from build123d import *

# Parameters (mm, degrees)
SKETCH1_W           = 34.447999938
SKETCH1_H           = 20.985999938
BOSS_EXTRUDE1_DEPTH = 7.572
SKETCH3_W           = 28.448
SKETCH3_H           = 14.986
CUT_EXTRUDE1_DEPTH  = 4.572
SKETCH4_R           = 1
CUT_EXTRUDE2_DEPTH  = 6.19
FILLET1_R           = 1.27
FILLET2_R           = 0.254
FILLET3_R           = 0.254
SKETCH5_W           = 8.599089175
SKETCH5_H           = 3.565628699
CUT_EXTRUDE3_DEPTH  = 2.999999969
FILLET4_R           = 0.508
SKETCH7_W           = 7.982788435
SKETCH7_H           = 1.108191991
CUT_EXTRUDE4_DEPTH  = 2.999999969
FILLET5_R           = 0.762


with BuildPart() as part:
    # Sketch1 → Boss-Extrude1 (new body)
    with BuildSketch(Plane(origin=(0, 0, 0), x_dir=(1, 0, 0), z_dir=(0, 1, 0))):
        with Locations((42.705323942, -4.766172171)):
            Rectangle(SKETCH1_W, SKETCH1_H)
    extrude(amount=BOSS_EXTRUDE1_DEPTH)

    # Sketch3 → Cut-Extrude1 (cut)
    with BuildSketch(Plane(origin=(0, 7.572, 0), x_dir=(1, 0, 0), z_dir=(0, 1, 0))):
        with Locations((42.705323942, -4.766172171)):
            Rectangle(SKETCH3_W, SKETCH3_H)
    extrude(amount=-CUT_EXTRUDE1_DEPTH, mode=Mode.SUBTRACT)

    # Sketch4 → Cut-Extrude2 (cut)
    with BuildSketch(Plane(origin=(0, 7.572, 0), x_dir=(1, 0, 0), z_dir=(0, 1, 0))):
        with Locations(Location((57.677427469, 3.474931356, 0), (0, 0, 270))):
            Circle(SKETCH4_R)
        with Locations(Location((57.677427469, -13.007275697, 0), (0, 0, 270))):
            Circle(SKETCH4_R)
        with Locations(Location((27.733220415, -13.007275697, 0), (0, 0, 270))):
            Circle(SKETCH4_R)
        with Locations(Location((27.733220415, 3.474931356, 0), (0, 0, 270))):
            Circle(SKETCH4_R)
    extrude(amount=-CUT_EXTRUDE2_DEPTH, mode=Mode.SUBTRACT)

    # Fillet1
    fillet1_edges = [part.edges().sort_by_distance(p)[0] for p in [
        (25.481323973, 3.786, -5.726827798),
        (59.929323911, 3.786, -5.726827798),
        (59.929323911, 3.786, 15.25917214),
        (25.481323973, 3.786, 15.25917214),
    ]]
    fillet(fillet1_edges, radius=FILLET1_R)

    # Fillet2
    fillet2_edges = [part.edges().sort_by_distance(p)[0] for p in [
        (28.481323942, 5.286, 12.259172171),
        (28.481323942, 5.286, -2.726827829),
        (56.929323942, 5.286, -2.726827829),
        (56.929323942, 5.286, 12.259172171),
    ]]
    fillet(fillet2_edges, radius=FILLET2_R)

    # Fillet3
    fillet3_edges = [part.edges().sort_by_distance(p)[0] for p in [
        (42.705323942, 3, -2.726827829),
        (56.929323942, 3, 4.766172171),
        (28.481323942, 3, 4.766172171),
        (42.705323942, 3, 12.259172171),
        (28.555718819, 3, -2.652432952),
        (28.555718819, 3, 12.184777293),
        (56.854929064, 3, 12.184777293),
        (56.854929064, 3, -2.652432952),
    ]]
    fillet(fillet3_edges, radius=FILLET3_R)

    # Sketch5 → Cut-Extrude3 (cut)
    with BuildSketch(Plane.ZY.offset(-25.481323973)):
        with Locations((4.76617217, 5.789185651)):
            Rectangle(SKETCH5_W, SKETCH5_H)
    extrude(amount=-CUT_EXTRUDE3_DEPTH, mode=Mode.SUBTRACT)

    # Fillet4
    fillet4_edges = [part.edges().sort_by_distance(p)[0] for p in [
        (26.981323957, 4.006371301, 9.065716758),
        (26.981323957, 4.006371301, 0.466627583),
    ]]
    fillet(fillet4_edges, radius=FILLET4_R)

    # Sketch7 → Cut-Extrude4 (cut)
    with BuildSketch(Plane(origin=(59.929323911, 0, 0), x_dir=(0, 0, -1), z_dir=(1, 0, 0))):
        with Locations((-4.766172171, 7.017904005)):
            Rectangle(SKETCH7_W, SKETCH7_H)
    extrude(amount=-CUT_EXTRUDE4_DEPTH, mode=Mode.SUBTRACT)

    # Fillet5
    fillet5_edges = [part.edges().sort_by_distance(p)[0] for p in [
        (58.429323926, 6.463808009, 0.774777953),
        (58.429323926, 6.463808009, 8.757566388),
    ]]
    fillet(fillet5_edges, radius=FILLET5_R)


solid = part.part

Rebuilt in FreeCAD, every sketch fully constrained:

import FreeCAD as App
import Part
import Sketcher

V = App.Vector
Q = App.Units.Quantity


def edges_at(feature, points):
    """Names of the edges that pass closest to the given points."""
    edges = feature.Shape.Edges
    near = lambda p: min(range(len(edges)), key=lambda i: edges[i].distToShape(Part.Vertex(*p))[0])
    return sorted({f"Edge{near(p) + 1}" for p in points})

doc = App.newDocument("Part")
params = doc.addObject("Spreadsheet::Sheet", "Params")
for row, (alias, value) in enumerate([
    ("pad1_length", "7.572 mm"),
    ("sketch2_width", "1.12 in"),
    ("sketch2_height", "0.59 in"),
    ("pocket1_length", "0.18 in"),
    ("pocket2_length", "6.19 mm"),
    ("fillet_radius", "0.05 in"),
    ("fillet2_radius", "0.01 in"),
    ("fillet3_radius", "0.01 in"),
    ("pocket3_length", "3 mm"),
    ("fillet4_radius", "0.02 in"),
    ("pocket4_length", "3 mm"),
    ("fillet5_radius", "0.03 in"),
], start=1):
    params.set(f"A{row}", alias)
    params.set(f"B{row}", "=" + value)
    params.setAlias(f"B{row}", alias)

body = doc.addObject("PartDesign::Body", "Body")

# Sketch on XZ plane
sketch1 = body.newObject("Sketcher::SketchObject", "Sketch")
sketch1.AttachmentSupport = (doc.getObject("XZ_Plane"), [""])
sketch1.MapMode = "FlatFace"
sketch1.addGeometry([
    Part.LineSegment(V(25.481324, -5.726828, 0), V(25.481324, 15.259172, 0)),
    Part.LineSegment(V(25.481324, 15.259172, 0), V(59.929324, 15.259172, 0)),
    Part.LineSegment(V(59.929324, 15.259172, 0), V(59.929324, -5.726828, 0)),
    Part.LineSegment(V(59.929324, -5.726828, 0), V(25.481324, -5.726828, 0)),
], False)
sketch1.addConstraint([
    Sketcher.Constraint("Coincident", 0, 2, 1, 1),
    Sketcher.Constraint("Coincident", 1, 2, 2, 1),
    Sketcher.Constraint("Coincident", 2, 2, 3, 1),
    Sketcher.Constraint("Coincident", 3, 2, 0, 1),
    Sketcher.Constraint("Vertical", 0),
    Sketcher.Constraint("Horizontal", 1),
    Sketcher.Constraint("Vertical", 2),
    Sketcher.Constraint("Horizontal", 3),
    Sketcher.Constraint("DistanceX", 1, 1, 1, 2, Q("34.448 mm")),
    Sketcher.Constraint("DistanceY", 0, 1, 0, 2, Q("20.986 mm")),
    Sketcher.Constraint("DistanceX", -1, 1, 0, 2, Q("25.481324 mm")),
    Sketcher.Constraint("DistanceY", -1, 1, 0, 2, Q("15.259172 mm")),
])
pad1 = body.newObject("PartDesign::Pad", "Pad")
pad1.Profile = sketch1
pad1.setExpression("Length", "Params.pad1_length")
pad1.Reversed = True

# Sketch on XZ plane
sketch2 = body.newObject("Sketcher::SketchObject", "Sketch001")
sketch2.AttachmentSupport = (doc.getObject("XZ_Plane"), [""])
sketch2.MapMode = "FlatFace"
sketch2.AttachmentOffset = App.Placement(V(0, 0, -7.572), App.Rotation())
sketch2.addGeometry([
    Part.LineSegment(V(28.481324, -2.726828, 0), V(28.481324, 12.259172, 0)),
    Part.LineSegment(V(28.481324, 12.259172, 0), V(56.929324, 12.259172, 0)),
    Part.LineSegment(V(56.929324, 12.259172, 0), V(56.929324, -2.726828, 0)),
    Part.LineSegment(V(56.929324, -2.726828, 0), V(28.481324, -2.726828, 0)),
], False)
sketch2.addConstraint([
    Sketcher.Constraint("Coincident", 0, 2, 1, 1),
    Sketcher.Constraint("Coincident", 1, 2, 2, 1),
    Sketcher.Constraint("Coincident", 2, 2, 3, 1),
    Sketcher.Constraint("Coincident", 3, 2, 0, 1),
    Sketcher.Constraint("Vertical", 0),
    Sketcher.Constraint("Horizontal", 1),
    Sketcher.Constraint("Vertical", 2),
    Sketcher.Constraint("Horizontal", 3),
    Sketcher.Constraint("DistanceX", 1, 1, 1, 2, Q("1.12 in")),
    Sketcher.Constraint("DistanceY", 0, 1, 0, 2, Q("0.59 in")),
    Sketcher.Constraint("DistanceX", -1, 1, 0, 2, Q("28.481324 mm")),
    Sketcher.Constraint("DistanceY", -1, 1, 0, 2, Q("12.259172 mm")),
])
sketch2.setExpression("Constraints[8]", "Params.sketch2_width")
sketch2.setExpression("Constraints[9]", "Params.sketch2_height")
pocket1 = body.newObject("PartDesign::Pocket", "Pocket")
pocket1.Profile = sketch2
pocket1.setExpression("Length", "Params.pocket1_length")
pocket1.Reversed = True

# Sketch on XZ plane
sketch3 = body.newObject("Sketcher::SketchObject", "Sketch002")
sketch3.AttachmentSupport = (doc.getObject("XZ_Plane"), [""])
sketch3.MapMode = "FlatFace"
sketch3.AttachmentOffset = App.Placement(V(0, 0, -7.572), App.Rotation())
sketch3.addGeometry([
    Part.Circle(V(57.677427, -3.474931, 0), V(0, 0, 1), 1),
    Part.Circle(V(57.677427, 13.007276, 0), V(0, 0, 1), 1),
    Part.Circle(V(27.73322, 13.007276, 0), V(0, 0, 1), 1),
    Part.Circle(V(27.73322, -3.474931, 0), V(0, 0, 1), 1),
], False)
sketch3.addConstraint([
    Sketcher.Constraint("Equal", 0, 1),
    Sketcher.Constraint("Equal", 1, 2),
    Sketcher.Constraint("Equal", 2, 3),
    Sketcher.Constraint("Horizontal", 1, 3, 2, 3),
    Sketcher.Constraint("Horizontal", 0, 3, 3, 3),
    Sketcher.Constraint("Vertical", 0, 3, 1, 3),
    Sketcher.Constraint("Vertical", 2, 3, 3, 3),
    Sketcher.Constraint("Diameter", 0, Q("2 mm")),
    Sketcher.Constraint("DistanceY", 0, 3, -1, 1, Q("3.474931 mm")),
    Sketcher.Constraint("DistanceX", -1, 1, 2, 3, Q("27.73322 mm")),
    Sketcher.Constraint("DistanceX", -1, 1, 0, 3, Q("57.677427 mm")),
    Sketcher.Constraint("DistanceY", -1, 1, 1, 3, Q("13.007276 mm")),
])
pocket2 = body.newObject("PartDesign::Pocket", "Pocket001")
pocket2.Profile = sketch3
pocket2.setExpression("Length", "Params.pocket2_length")
pocket2.Reversed = True
doc.recompute()

fillet = body.newObject("PartDesign::Fillet", "Fillet")
fillet.Base = (pocket2, edges_at(pocket2, [
    (25.481, 3.786, -5.727),
    (59.929, 3.786, -5.727),
    (59.929, 3.786, 15.259),
    (25.481, 3.786, 15.259),
]))
fillet.setExpression("Radius", "Params.fillet_radius")
doc.recompute()

fillet2 = body.newObject("PartDesign::Fillet", "Fillet001")
fillet2.Base = (fillet, edges_at(fillet, [
    (28.481, 5.286, 12.259),
    (28.481, 5.286, -2.727),
    (56.929, 5.286, -2.727),
    (56.929, 5.286, 12.259),
]))
fillet2.setExpression("Radius", "Params.fillet2_radius")
doc.recompute()

fillet3 = body.newObject("PartDesign::Fillet", "Fillet002")
fillet3.Base = (fillet2, edges_at(fillet2, [
    (42.705, 3, -2.727),
    (56.929, 3, 4.766),
    (28.481, 3, 4.766),
    (42.705, 3, 12.259),
    (28.556, 3, -2.652),
    (28.556, 3, 12.185),
    (56.855, 3, 12.185),
    (56.855, 3, -2.652),
]))
fillet3.setExpression("Radius", "Params.fillet3_radius")

# Sketch on YZ plane
sketch4 = body.newObject("Sketcher::SketchObject", "Sketch003")
sketch4.AttachmentSupport = (doc.getObject("YZ_Plane"), [""])
sketch4.MapMode = "FlatFace"
sketch4.AttachmentOffset = App.Placement(V(0, 0, 25.481324), App.Rotation())
sketch4.addGeometry([
    Part.LineSegment(V(7.572, 0.466628, 0), V(4.006371, 0.466628, 0)),
    Part.LineSegment(V(4.006371, 0.466628, 0), V(4.006371, 9.065717, 0)),
    Part.LineSegment(V(4.006371, 9.065717, 0), V(7.572, 9.065717, 0)),
    Part.LineSegment(V(7.572, 9.065717, 0), V(7.572, 0.466628, 0)),
], False)
sketch4.addConstraint([
    Sketcher.Constraint("Coincident", 0, 2, 1, 1),
    Sketcher.Constraint("Coincident", 1, 2, 2, 1),
    Sketcher.Constraint("Coincident", 2, 2, 3, 1),
    Sketcher.Constraint("Coincident", 3, 2, 0, 1),
    Sketcher.Constraint("Horizontal", 0),
    Sketcher.Constraint("Vertical", 1),
    Sketcher.Constraint("Horizontal", 2),
    Sketcher.Constraint("Vertical", 3),
    Sketcher.Constraint("DistanceX", 0, 2, 0, 1, Q("3.565629 mm")),
    Sketcher.Constraint("DistanceY", 1, 1, 1, 2, Q("8.599089 mm")),
    Sketcher.Constraint("DistanceX", -1, 1, 2, 2, Q("7.572 mm")),
    Sketcher.Constraint("DistanceY", -1, 1, 0, 2, Q("0.466628 mm")),
])
pocket3 = body.newObject("PartDesign::Pocket", "Pocket002")
pocket3.Profile = sketch4
pocket3.setExpression("Length", "Params.pocket3_length")
pocket3.Reversed = True
doc.recompute()

fillet4 = body.newObject("PartDesign::Fillet", "Fillet003")
fillet4.Base = (pocket3, edges_at(pocket3, [(26.981, 4.006, 9.066), (26.981, 4.006, 0.467)]))
fillet4.setExpression("Radius", "Params.fillet4_radius")

# Sketch on YZ plane
sketch5 = body.newObject("Sketcher::SketchObject", "Sketch004")
sketch5.AttachmentSupport = (doc.getObject("YZ_Plane"), [""])
sketch5.MapMode = "FlatFace"
sketch5.AttachmentOffset = App.Placement(V(0, 0, 59.929324), App.Rotation())
sketch5.addGeometry([
    Part.LineSegment(V(7.572, 8.757566, 0), V(6.463808, 8.757566, 0)),
    Part.LineSegment(V(6.463808, 8.757566, 0), V(6.463808, 0.774778, 0)),
    Part.LineSegment(V(6.463808, 0.774778, 0), V(7.572, 0.774778, 0)),
    Part.LineSegment(V(7.572, 0.774778, 0), V(7.572, 8.757566, 0)),
], False)
sketch5.addConstraint([
    Sketcher.Constraint("Coincident", 0, 2, 1, 1),
    Sketcher.Constraint("Coincident", 1, 2, 2, 1),
    Sketcher.Constraint("Coincident", 2, 2, 3, 1),
    Sketcher.Constraint("Coincident", 3, 2, 0, 1),
    Sketcher.Constraint("Horizontal", 0),
    Sketcher.Constraint("Vertical", 1),
    Sketcher.Constraint("Horizontal", 2),
    Sketcher.Constraint("Vertical", 3),
    Sketcher.Constraint("DistanceX", 0, 2, 0, 1, Q("1.108192 mm")),
    Sketcher.Constraint("DistanceY", 1, 2, 1, 1, Q("7.982788 mm")),
    Sketcher.Constraint("DistanceX", -1, 1, 2, 2, Q("7.572 mm")),
    Sketcher.Constraint("DistanceY", -1, 1, 0, 2, Q("8.757566 mm")),
])
pocket4 = body.newObject("PartDesign::Pocket", "Pocket003")
pocket4.Profile = sketch5
pocket4.setExpression("Length", "Params.pocket4_length")
doc.recompute()

fillet5 = body.newObject("PartDesign::Fillet", "Fillet004")
fillet5.Base = (pocket4, edges_at(pocket4, [(58.429, 6.464, 0.775), (58.429, 6.464, 8.758)]))
fillet5.setExpression("Radius", "Params.fillet5_radius")

doc.recompute()
